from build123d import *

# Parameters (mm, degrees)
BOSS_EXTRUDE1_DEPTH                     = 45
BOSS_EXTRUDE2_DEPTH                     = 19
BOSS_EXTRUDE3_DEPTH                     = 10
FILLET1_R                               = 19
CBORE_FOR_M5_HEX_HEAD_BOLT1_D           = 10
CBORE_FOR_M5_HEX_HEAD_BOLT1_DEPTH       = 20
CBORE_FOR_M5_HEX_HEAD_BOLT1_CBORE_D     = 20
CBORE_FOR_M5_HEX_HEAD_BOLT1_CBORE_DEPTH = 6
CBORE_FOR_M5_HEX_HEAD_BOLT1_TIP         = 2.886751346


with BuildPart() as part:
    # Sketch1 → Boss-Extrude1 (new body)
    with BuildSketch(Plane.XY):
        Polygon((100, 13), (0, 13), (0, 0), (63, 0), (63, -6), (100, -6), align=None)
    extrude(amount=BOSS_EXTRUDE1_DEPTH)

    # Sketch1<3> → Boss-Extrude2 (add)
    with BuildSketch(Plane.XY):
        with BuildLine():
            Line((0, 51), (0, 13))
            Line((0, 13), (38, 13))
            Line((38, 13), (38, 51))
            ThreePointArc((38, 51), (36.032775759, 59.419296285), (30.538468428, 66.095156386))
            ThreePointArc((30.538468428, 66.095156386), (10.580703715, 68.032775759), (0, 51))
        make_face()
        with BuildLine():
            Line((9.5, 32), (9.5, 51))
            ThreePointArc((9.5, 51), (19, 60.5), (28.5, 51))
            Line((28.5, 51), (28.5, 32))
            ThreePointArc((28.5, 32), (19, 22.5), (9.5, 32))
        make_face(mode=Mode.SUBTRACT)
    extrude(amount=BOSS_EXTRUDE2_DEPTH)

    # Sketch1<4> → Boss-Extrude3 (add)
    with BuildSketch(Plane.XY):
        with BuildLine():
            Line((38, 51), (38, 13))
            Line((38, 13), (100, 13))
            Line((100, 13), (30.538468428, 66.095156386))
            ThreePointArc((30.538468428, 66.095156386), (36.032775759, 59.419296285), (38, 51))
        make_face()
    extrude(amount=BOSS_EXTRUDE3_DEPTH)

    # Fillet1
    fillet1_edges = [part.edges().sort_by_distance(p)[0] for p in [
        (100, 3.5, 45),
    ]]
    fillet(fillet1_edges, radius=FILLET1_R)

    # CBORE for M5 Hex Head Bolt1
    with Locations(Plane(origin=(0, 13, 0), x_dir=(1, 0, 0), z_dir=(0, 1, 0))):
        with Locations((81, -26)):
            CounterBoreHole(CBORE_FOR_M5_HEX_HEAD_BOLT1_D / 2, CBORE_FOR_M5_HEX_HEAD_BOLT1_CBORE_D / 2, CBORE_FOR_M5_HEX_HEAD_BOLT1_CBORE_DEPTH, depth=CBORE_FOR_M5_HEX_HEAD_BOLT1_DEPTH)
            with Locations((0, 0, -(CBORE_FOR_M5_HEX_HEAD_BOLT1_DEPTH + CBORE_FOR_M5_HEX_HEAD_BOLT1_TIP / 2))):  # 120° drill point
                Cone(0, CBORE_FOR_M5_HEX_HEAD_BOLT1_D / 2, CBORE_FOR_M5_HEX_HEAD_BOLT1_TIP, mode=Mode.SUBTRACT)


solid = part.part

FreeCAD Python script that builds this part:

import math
import FreeCAD as App
import Part
import Sketcher

V = App.Vector


def edges_at(feature, points):
    """Names of the edges that pass closest to the given points."""
    edges = feature.Shape.Edges
    near = lambda p: min(range(len(edges)), key=lambda i: edges[i].distToShape(Part.Vertex(*p))[0])
    return sorted({f"Edge{near(p) + 1}" for p in points})


def add_polygon(sketch, points):
    """Adds a closed chain of lines whose ends are joined by coincident constraints."""
    first, n = sketch.GeometryCount, len(points)
    for a, b in zip(points, points[1:] + points[:1]):
        sketch.addGeometry(Part.LineSegment(App.Vector(*a, 0), App.Vector(*b, 0)), False)
    for i in range(n):
        sketch.addConstraint(Sketcher.Constraint("Coincident", first + i, 2, first + (i + 1) % n, 1))

doc = App.newDocument("Part")
body = doc.addObject("PartDesign::Body", "Body")

# Sketch on XY plane
sketch1 = doc.addObject("Sketcher::SketchObject", "Sketch")
body.addObject(sketch1)
sketch1.AttachmentSupport = (doc.XY_Plane, [""])
sketch1.MapMode = "FlatFace"
add_polygon(sketch1, [(100, 13), (0, 13), (0, 0), (63, 0), (63, -6), (100, -6)])  # lines 0-5
sketch1.addConstraint(Sketcher.Constraint("Horizontal", 0))
sketch1.addConstraint(Sketcher.Constraint("Vertical", 1))
sketch1.addConstraint(Sketcher.Constraint("Horizontal", 2))
sketch1.addConstraint(Sketcher.Constraint("Vertical", 3))
sketch1.addConstraint(Sketcher.Constraint("Horizontal", 4))
sketch1.addConstraint(Sketcher.Constraint("Vertical", 5))
sketch1.addConstraint(Sketcher.Constraint("Coincident", 1, 2, -1, 1))
sketch1.addConstraint(Sketcher.Constraint("DistanceX", 0, 2, 0, 1, 100.0))
sketch1.addConstraint(Sketcher.Constraint("DistanceX", 2, 1, 2, 2, 63.0))
sketch1.addConstraint(Sketcher.Constraint("DistanceY", 1, 2, 1, 1, 13.0))
sketch1.addConstraint(Sketcher.Constraint("DistanceY", 3, 2, 3, 1, 6.0))
pad1 = doc.addObject("PartDesign::Pad", "Pad")
body.addObject(pad1)
pad1.Profile = sketch1
pad1.Length = 45

# Sketch on XY plane
sketch2 = doc.addObject("Sketcher::SketchObject", "Sketch001")
body.addObject(sketch2)
sketch2.AttachmentSupport = (doc.XY_Plane, [""])
sketch2.MapMode = "FlatFace"
sketch2.addGeometry(Part.LineSegment(V(0, 51, 0), V(0, 13, 0)), False)
sketch2.addGeometry(Part.LineSegment(V(0, 13, 0), V(38, 13, 0)), False)
sketch2.addGeometry(Part.LineSegment(V(38, 13, 0), V(38, 51, 0)), False)
sketch2.addGeometry(Part.ArcOfCircle(Part.Circle(V(19, 51, 0), V(0, 0, 1), 19), math.radians(0), math.radians(53)), False)
sketch2.addGeometry(Part.ArcOfCircle(Part.Circle(V(19, 51, 0), V(0, 0, 1), 19), math.radians(53), math.radians(180)), False)
sketch2.addGeometry(Part.ArcOfCircle(Part.Circle(V(19, 32, 0), V(0, 0, 1), 10), math.radians(180), math.radians(360)), False)
sketch2.addGeometry(Part.LineSegment(V(10, 32, 0), V(10, 51, 0)), False)
sketch2.addGeometry(Part.ArcOfCircle(Part.Circle(V(19, 51, 0), V(0, 0, 1), 10), math.radians(0), math.radians(180)), False)
sketch2.addGeometry(Part.LineSegment(V(28, 51, 0), V(28, 32, 0)), False)
sketch2.addConstraint(Sketcher.Constraint("Coincident", 0, 2, 1, 1))
sketch2.addConstraint(Sketcher.Constraint("Coincident", 1, 2, 2, 1))
sketch2.addConstraint(Sketcher.Constraint("Tangent", 2, 2, 3, 1))
sketch2.addConstraint(Sketcher.Constraint("Tangent", 3, 2, 4, 1))
sketch2.addConstraint(Sketcher.Constraint("Tangent", 4, 2, 0, 1))
sketch2.addConstraint(Sketcher.Constraint("Tangent", 5, 1, 6, 1))
sketch2.addConstraint(Sketcher.Constraint("Tangent", 6, 2, 7, 2))
sketch2.addConstraint(Sketcher.Constraint("Tangent", 7, 1, 8, 1))
sketch2.addConstraint(Sketcher.Constraint("Tangent", 8, 2, 5, 2))
sketch2.addConstraint(Sketcher.Constraint("Vertical", 0))
sketch2.addConstraint(Sketcher.Constraint("Horizontal", 1))
sketch2.addConstraint(Sketcher.Constraint("Vertical", 2))
sketch2.addConstraint(Sketcher.Constraint("Vertical", 6))
sketch2.addConstraint(Sketcher.Constraint("Vertical", 8))
sketch2.addConstraint(Sketcher.Constraint("Coincident", 7, 3, 3, 3))
sketch2.addConstraint(Sketcher.Constraint("Equal", 3, 4))
sketch2.addConstraint(Sketcher.Constraint("PointOnObject", 0, 2, -2))
sketch2.addConstraint(Sketcher.Constraint("Equal", 1, 0))
sketch2.addConstraint(Sketcher.Constraint("Radius", 3, 19.0))
sketch2.addConstraint(Sketcher.Constraint("Radius", 5, 9.5))
sketch2.addConstraint(Sketcher.Constraint("DistanceY", 6, 1, 6, 2, 19.0))
sketch2.addConstraint(Sketcher.Constraint("DistanceY", -1, 1, 3, 3, 51.0))
sketch2.addConstraint(Sketcher.Constraint("DistanceX", -1, 1, 3, 2, 30.538468))
pad2 = doc.addObject("PartDesign::Pad", "Pad001")
body.addObject(pad2)
pad2.Profile = sketch2
pad2.Length = 19

# Sketch on XY plane
sketch3 = doc.addObject("Sketcher::SketchObject", "Sketch002")
body.addObject(sketch3)
sketch3.AttachmentSupport = (doc.XY_Plane, [""])
sketch3.MapMode = "FlatFace"
sketch3.addGeometry(Part.LineSegment(V(38, 51, 0), V(38, 13, 0)), False)
sketch3.addGeometry(Part.LineSegment(V(38, 13, 0), V(100, 13, 0)), False)
sketch3.addGeometry(Part.LineSegment(V(100, 13, 0), V(31, 66, 0)), False)
sketch3.addGeometry(Part.ArcOfCircle(Part.Circle(V(19, 51, 0), V(0, 0, 1), 19), math.radians(0), math.radians(53)), False)
sketch3.addConstraint(Sketcher.Constraint("Coincident", 0, 2, 1, 1))
sketch3.addConstraint(Sketcher.Constraint("Coincident", 1, 2, 2, 1))
sketch3.addConstraint(Sketcher.Constraint("Tangent", 2, 2, 3, 2))
sketch3.addConstraint(Sketcher.Constraint("Tangent", 3, 1, 0, 1))
sketch3.addConstraint(Sketcher.Constraint("Vertical", 0))
sketch3.addConstraint(Sketcher.Constraint("Horizontal", 1))
sketch3.addConstraint(Sketcher.Constraint("Radius", 3, 19.0))
sketch3.addConstraint(Sketcher.Constraint("DistanceX", 1, 1, 1, 2, 62.0))
sketch3.addConstraint(Sketcher.Constraint("DistanceY", 0, 2, 0, 1, 38.0))
sketch3.addConstraint(Sketcher.Constraint("DistanceX", -1, 1, 3, 3, 19.0))
sketch3.addConstraint(Sketcher.Constraint("DistanceY", -1, 1, 3, 3, 51.0))
pad3 = doc.addObject("PartDesign::Pad", "Pad002")
body.addObject(pad3)
pad3.Profile = sketch3
pad3.Length = 10
doc.recompute()

fillet = doc.addObject("PartDesign::Fillet", "Fillet")
body.addObject(fillet)
fillet.Base = (pad3, edges_at(pad3, [(100, 3.5, 45)]))
fillet.Radius = 19

# Sketch on XZ plane
sketch4 = doc.addObject("Sketcher::SketchObject", "Sketch003")
body.addObject(sketch4)
sketch4.AttachmentSupport = (doc.XZ_Plane, [""])
sketch4.MapMode = "FlatFace"
sketch4.AttachmentOffset = App.Placement(V(0, 0, -13), App.Rotation())
sketch4.addGeometry(Part.Circle(V(81, 26, 0), V(0, 0, 1), 5), False)
sketch4.addConstraint(Sketcher.Constraint("Diameter", 0, 10.0))
sketch4.addConstraint(Sketcher.Constraint("DistanceX", -1, 1, 0, 3, 81.0))
sketch4.addConstraint(Sketcher.Constraint("DistanceY", -1, 1, 0, 3, 26.0))
doc.recompute()
hole = doc.addObject("PartDesign::Hole", "Hole")
body.addObject(hole)
hole.Profile = sketch4
hole.ThreadType = "None"
hole.Diameter = 10
hole.DepthType = "Dimension"
hole.Depth = 20
hole.DrillPoint = "Angled"
hole.DrillPointAngle = 120
hole.HoleCutType = "Counterbore"
hole.HoleCutDiameter = 20
hole.HoleCutDepth = 6
hole.Reversed = True

doc.recompute()
